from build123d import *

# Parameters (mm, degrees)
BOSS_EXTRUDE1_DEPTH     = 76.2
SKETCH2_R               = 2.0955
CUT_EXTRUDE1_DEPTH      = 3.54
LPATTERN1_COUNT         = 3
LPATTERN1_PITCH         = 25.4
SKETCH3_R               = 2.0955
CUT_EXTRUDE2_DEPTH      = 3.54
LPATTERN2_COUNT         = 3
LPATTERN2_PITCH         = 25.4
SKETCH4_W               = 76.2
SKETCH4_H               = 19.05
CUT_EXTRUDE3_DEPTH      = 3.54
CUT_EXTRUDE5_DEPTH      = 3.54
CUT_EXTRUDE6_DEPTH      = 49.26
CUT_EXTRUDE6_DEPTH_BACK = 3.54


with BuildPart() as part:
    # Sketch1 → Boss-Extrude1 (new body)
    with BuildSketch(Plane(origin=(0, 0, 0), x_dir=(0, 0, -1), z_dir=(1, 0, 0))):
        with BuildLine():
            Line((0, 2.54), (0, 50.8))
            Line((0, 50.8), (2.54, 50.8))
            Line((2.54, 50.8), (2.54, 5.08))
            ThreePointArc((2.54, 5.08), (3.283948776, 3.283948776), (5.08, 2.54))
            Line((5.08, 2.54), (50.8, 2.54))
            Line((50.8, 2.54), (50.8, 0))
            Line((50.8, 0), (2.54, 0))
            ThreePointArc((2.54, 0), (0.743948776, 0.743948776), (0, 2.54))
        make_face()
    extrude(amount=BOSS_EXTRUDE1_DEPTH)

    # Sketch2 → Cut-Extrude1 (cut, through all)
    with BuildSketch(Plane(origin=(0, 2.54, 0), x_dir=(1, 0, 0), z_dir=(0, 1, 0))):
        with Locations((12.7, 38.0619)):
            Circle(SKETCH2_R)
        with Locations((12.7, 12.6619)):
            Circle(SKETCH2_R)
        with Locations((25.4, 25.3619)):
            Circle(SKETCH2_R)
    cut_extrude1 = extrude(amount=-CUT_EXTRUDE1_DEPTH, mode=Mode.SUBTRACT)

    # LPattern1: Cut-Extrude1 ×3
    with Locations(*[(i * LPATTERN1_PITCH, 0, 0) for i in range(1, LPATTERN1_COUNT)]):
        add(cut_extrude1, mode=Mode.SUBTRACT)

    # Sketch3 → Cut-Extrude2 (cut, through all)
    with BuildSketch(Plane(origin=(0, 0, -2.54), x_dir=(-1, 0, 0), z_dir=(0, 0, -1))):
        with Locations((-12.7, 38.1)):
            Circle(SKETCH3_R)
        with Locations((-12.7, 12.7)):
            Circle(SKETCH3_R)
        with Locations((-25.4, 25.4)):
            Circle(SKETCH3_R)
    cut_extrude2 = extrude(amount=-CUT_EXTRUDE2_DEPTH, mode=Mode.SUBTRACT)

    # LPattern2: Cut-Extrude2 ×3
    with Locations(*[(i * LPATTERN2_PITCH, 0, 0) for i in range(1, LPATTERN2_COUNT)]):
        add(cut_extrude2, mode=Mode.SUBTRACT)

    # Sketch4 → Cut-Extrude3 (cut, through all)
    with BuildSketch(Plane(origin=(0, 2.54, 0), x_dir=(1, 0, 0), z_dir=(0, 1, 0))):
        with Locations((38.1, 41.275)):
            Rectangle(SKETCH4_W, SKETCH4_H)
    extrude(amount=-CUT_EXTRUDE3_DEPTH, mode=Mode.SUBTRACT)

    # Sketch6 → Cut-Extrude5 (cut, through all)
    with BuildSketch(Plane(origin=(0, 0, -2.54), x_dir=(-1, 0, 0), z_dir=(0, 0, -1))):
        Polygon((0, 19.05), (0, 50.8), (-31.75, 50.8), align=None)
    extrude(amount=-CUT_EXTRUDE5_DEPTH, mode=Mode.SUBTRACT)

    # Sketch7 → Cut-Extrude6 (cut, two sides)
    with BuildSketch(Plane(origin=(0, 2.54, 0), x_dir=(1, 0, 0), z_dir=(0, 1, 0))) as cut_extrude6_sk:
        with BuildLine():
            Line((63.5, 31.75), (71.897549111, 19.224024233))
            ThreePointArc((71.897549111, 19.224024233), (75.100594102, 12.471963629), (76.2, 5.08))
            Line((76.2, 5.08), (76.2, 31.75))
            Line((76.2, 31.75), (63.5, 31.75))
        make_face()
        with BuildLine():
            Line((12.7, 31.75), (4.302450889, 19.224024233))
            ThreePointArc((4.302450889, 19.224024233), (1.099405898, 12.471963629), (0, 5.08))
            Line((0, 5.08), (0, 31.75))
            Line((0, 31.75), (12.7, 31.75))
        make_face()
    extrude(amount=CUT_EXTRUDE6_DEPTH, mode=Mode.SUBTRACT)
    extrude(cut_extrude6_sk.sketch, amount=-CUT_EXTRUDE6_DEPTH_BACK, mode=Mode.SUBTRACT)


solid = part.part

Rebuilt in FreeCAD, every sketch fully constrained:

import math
import FreeCAD as App
import Part
import Sketcher

V = App.Vector
Q = App.Units.Quantity

doc = App.newDocument("Part")
params = doc.addObject("Spreadsheet::Sheet", "Params")
for row, (alias, value) in enumerate([
    ("sketch1_radius", "0.1 in"),
    ("sketch1_width", "1.9 in"),
    ("pad1_length", "3 in"),
    ("sketch2_diameter", "0.165 in"),
    ("linearpattern_pitch", "1 in"),
    ("sketch3_diameter", "0.165 in"),
    ("linearpattern2_pitch", "1 in"),
    ("sketch4_width", "3 in"),
    ("sketch4_height", "0.75 in"),
    ("sketch5_width", "1.25 in"),
    ("sketch6_radius", "1 in"),
    ("sketch6_width", "0.5 in"),
    ("sketch6_height", "1.05 in"),
], start=1):
    params.set(f"A{row}", alias)
    params.set(f"B{row}", "=" + value)
    params.setAlias(f"B{row}", alias)

body = doc.addObject("PartDesign::Body", "Body")

sketch1 = body.newObject("Sketcher::SketchObject", "Sketch")
sketch1.AttachmentSupport = (doc.getObject("YZ_Plane"), [""])
sketch1.MapMode = "FlatFace"
sketch1.addGeometry([
    Part.LineSegment(V(50.8, 0, 0), V(2.54, 0, 0)),
    Part.ArcOfCircle(Part.Circle(V(2.54, -2.54, 0), V(0, 0, 1), 2.54), math.radians(90), math.radians(180)),
    Part.LineSegment(V(0, -2.54, 0), V(0, -50.8, 0)),
    Part.LineSegment(V(0, -50.8, 0), V(2.54, -50.8, 0)),
    Part.LineSegment(V(2.54, -50.8, 0), V(2.54, -5.08, 0)),
    Part.ArcOfCircle(Part.Circle(V(5.08, -5.08, 0), V(0, 0, 1), 2.54), math.radians(90), math.radians(180)),
    Part.LineSegment(V(5.08, -2.54, 0), V(50.8, -2.54, 0)),
    Part.LineSegment(V(50.8, -2.54, 0), V(50.8, 0, 0)),
], False)
sketch1.addConstraint([
    Sketcher.Constraint("Tangent", 0, 2, 1, 1),
    Sketcher.Constraint("Tangent", 1, 2, 2, 1),
    Sketcher.Constraint("Coincident", 2, 2, 3, 1),
    Sketcher.Constraint("Coincident", 3, 2, 4, 1),
    Sketcher.Constraint("Tangent", 4, 2, 5, 2),
    Sketcher.Constraint("Tangent", 5, 1, 6, 1),
    Sketcher.Constraint("Coincident", 6, 2, 7, 1),
    Sketcher.Constraint("Coincident", 7, 2, 0, 1),
    Sketcher.Constraint("Horizontal", 0),
    Sketcher.Constraint("Vertical", 2),
    Sketcher.Constraint("Horizontal", 3),
    Sketcher.Constraint("Vertical", 4),
    Sketcher.Constraint("Horizontal", 6),
    Sketcher.Constraint("Vertical", 7),
    Sketcher.Constraint("Equal", 1, 5),
    Sketcher.Constraint("PointOnObject", 0, 2, -1),
    Sketcher.Constraint("PointOnObject", 1, 2, -2),
    Sketcher.Constraint("Horizontal", 1, 2, 5, 1),
    Sketcher.Constraint("Vertical", 0, 2, 3, 2),
    Sketcher.Constraint("Equal", 0, 2),
    Sketcher.Constraint("Radius", 1, Q("0.1 in")),
    Sketcher.Constraint("DistanceX", 0, 2, 0, 1, Q("1.9 in")),
])
sketch1.setExpression("Constraints[20]", "Params.sketch1_radius")
sketch1.setExpression("Constraints[21]", "Params.sketch1_width")
pad1 = body.newObject("PartDesign::Pad", "Pad")
pad1.Profile = sketch1
pad1.setExpression("Length", "Params.pad1_length")

sketch2 = body.newObject("Sketcher::SketchObject", "Sketch001")
sketch2.AttachmentSupport = (doc.getObject("XZ_Plane"), [""])
sketch2.MapMode = "FlatFace"
sketch2.AttachmentOffset = App.Placement(V(0, 0, -0.1 * 25.4), App.Rotation())
sketch2.addGeometry([
    Part.Circle(V(12.7, -38.0619, 0), V(0, 0, 1), 2.0955),
    Part.Circle(V(12.7, -12.6619, 0), V(0, 0, 1), 2.0955),
    Part.Circle(V(25.4, -25.3619, 0), V(0, 0, 1), 2.0955),
], False)
sketch2.addConstraint([
    Sketcher.Constraint("Equal", 0, 1),
    Sketcher.Constraint("Equal", 1, 2),
    Sketcher.Constraint("Vertical", 0, 3, 1, 3),
    Sketcher.Constraint("Diameter", 0, Q("0.165 in")),
    Sketcher.Constraint("DistanceX", -1, 1, 2, 3, Q("1 in")),
    Sketcher.Constraint("DistanceY", 0, 3, 1, 3, Q("1 in")),
    Sketcher.Constraint("DistanceX", -1, 1, 0, 3, Q("0.5 in")),
    Sketcher.Constraint("DistanceY", 0, 3, 2, 3, Q("0.5 in")),
    Sketcher.Constraint("DistanceY", 0, 3, -1, 1, Q("1.4985 in")),
])
sketch2.setExpression("Constraints[3]", "Params.sketch2_diameter")
pocket1 = body.newObject("PartDesign::Pocket", "Pocket")
pocket1.Profile = sketch2
pocket1.Type = "ThroughAll"
pocket1.Reversed = True
doc.recompute()

linearpattern = body.newObject("PartDesign::LinearPattern", "LinearPattern")
linearpattern.Originals = [pocket1]
linearpattern.Direction = (doc.getObject("X_Axis"), [""])
linearpattern.Mode = "offset"
linearpattern.setExpression("Offset", "Params.linearpattern_pitch")
linearpattern.Occurrences = 3
body.Tip = linearpattern

sketch3 = body.newObject("Sketcher::SketchObject", "Sketch002")
sketch3.AttachmentSupport = (doc.getObject("XY_Plane"), [""])
sketch3.MapMode = "FlatFace"
sketch3.AttachmentOffset = App.Placement(V(0, 0, -0.1 * 25.4), App.Rotation())
sketch3.addGeometry([
    Part.Circle(V(12.7, 38.1, 0), V(0, 0, 1), 2.0955),
    Part.Circle(V(12.7, 12.7, 0), V(0, 0, 1), 2.0955),
    Part.Circle(V(25.4, 25.4, 0), V(0, 0, 1), 2.0955),
], False)
sketch3.addConstraint([
    Sketcher.Constraint("Equal", 0, 1),
    Sketcher.Constraint("Equal", 1, 2),
    Sketcher.Constraint("Vertical", 0, 3, 1, 3),
    Sketcher.Constraint("Diameter", 0, Q("0.165 in")),
    Sketcher.Constraint("DistanceX", -1, 1, 2, 3, Q("1 in")),
    Sketcher.Constraint("DistanceY", -1, 1, 2, 3, Q("1 in")),
    Sketcher.Constraint("DistanceY", 1, 3, 0, 3, Q("1 in")),
    Sketcher.Constraint("DistanceX", -1, 1, 0, 3, Q("0.5 in")),
    Sketcher.Constraint("DistanceY", -1, 1, 0, 3, Q("1.5 in")),
])
sketch3.setExpression("Constraints[3]", "Params.sketch3_diameter")
pocket2 = body.newObject("PartDesign::Pocket", "Pocket001")
pocket2.Profile = sketch3
pocket2.Type = "ThroughAll"
pocket2.Reversed = True
doc.recompute()

linearpattern2 = body.newObject("PartDesign::LinearPattern", "LinearPattern001")
linearpattern2.Originals = [pocket2]
linearpattern2.Direction = (doc.getObject("X_Axis"), [""])
linearpattern2.Mode = "offset"
linearpattern2.setExpression("Offset", "Params.linearpattern2_pitch")
linearpattern2.Occurrences = 3
body.Tip = linearpattern2

sketch4 = body.newObject("Sketcher::SketchObject", "Sketch003")
sketch4.AttachmentSupport = (doc.getObject("XZ_Plane"), [""])
sketch4.MapMode = "FlatFace"
sketch4.AttachmentOffset = App.Placement(V(0, 0, -0.1 * 25.4), App.Rotation())
sketch4.addGeometry([
    Part.LineSegment(V(0, -50.8, 0), V(0, -31.75, 0)),
    Part.LineSegment(V(0, -31.75, 0), V(76.2, -31.75, 0)),
    Part.LineSegment(V(76.2, -31.75, 0), V(76.2, -50.8, 0)),
    Part.LineSegment(V(76.2, -50.8, 0), V(0, -50.8, 0)),
], False)
sketch4.addConstraint([
    Sketcher.Constraint("Coincident", 0, 2, 1, 1),
    Sketcher.Constraint("Coincident", 1, 2, 2, 1),
    Sketcher.Constraint("Coincident", 2, 2, 3, 1),
    Sketcher.Constraint("Coincident", 3, 2, 0, 1),
    Sketcher.Constraint("Vertical", 0),
    Sketcher.Constraint("Horizontal", 1),
    Sketcher.Constraint("Vertical", 2),
    Sketcher.Constraint("Horizontal", 3),
    Sketcher.Constraint("PointOnObject", 0, 2, -2),
    Sketcher.Constraint("DistanceX", 1, 1, 1, 2, Q("3 in")),
    Sketcher.Constraint("DistanceY", 2, 2, -1, 1, Q("2 in")),
    Sketcher.Constraint("DistanceY", 0, 1, 0, 2, Q("0.75 in")),
])
sketch4.setExpression("Constraints[9]", "Params.sketch4_width")
sketch4.setExpression("Constraints[11]", "Params.sketch4_height")
pocket3 = body.newObject("PartDesign::Pocket", "Pocket002")
pocket3.Profile = sketch4
pocket3.Type = "ThroughAll"
pocket3.Reversed = True

sketch5 = body.newObject("Sketcher::SketchObject", "Sketch004")
sketch5.AttachmentSupport = (doc.getObject("XY_Plane"), [""])
sketch5.MapMode = "FlatFace"
sketch5.AttachmentOffset = App.Placement(V(0, 0, -0.1 * 25.4), App.Rotation())
sketch5.addGeometry([
    Part.LineSegment(V(0, 19.05, 0), V(0, 50.8, 0)),
    Part.LineSegment(V(0, 50.8, 0), V(31.75, 50.8, 0)),
    Part.LineSegment(V(31.75, 50.8, 0), V(0, 19.05, 0)),
], False)
sketch5.addConstraint([
    Sketcher.Constraint("Coincident", 0, 2, 1, 1),
    Sketcher.Constraint("Coincident", 1, 2, 2, 1),
    Sketcher.Constraint("Coincident", 2, 2, 0, 1),
    Sketcher.Constraint("Vertical", 0),
    Sketcher.Constraint("Horizontal", 1),
    Sketcher.Constraint("PointOnObject", 0, 2, -2),
    Sketcher.Constraint("Equal", 1, 0),
    Sketcher.Constraint("DistanceY", -1, 1, 0, 2, Q("2 in")),
    Sketcher.Constraint("DistanceX", 1, 1, 1, 2, Q("1.25 in")),
])
sketch5.setExpression("Constraints[8]", "Params.sketch5_width")
pocket4 = body.newObject("PartDesign::Pocket", "Pocket003")
pocket4.Profile = sketch5
pocket4.Type = "ThroughAll"
pocket4.Reversed = True

sketch6 = body.newObject("Sketcher::SketchObject", "Sketch005")
sketch6.AttachmentSupport = (doc.getObject("XZ_Plane"), [""])
sketch6.MapMode = "FlatFace"
sketch6.AttachmentOffset = App.Placement(V(0, 0, -0.1 * 25.4), App.Rotation())
sketch6.addGeometry([
    Part.LineSegment(V(63.5, -31.75, 0), V(71.897549, -19.224024, 0)),
    Part.ArcOfCircle(Part.Circle(V(50.8, -5.08, 0), V(0, 0, 1), 25.4), math.radians(-33.838326), math.radians(0)),
    Part.LineSegment(V(76.2, -5.08, 0), V(76.2, -31.75, 0)),
    Part.LineSegment(V(76.2, -31.75, 0), V(63.5, -31.75, 0)),
    Part.LineSegment(V(4.302451, -19.224024, 0), V(12.7, -31.75, 0)),
    Part.LineSegment(V(12.7, -31.75, 0), V(0, -31.75, 0)),
    Part.LineSegment(V(0, -31.75, 0), V(0, -5.08, 0)),
    Part.ArcOfCircle(Part.Circle(V(25.4, -5.08, 0), V(0, 0, 1), 25.4), math.radians(180), math.radians(213.838326)),
], False)
sketch6.addConstraint([
    Sketcher.Constraint("Tangent", 0, 2, 1, 1),
    Sketcher.Constraint("Tangent", 1, 2, 2, 1),
    Sketcher.Constraint("Coincident", 2, 2, 3, 1),
    Sketcher.Constraint("Coincident", 3, 2, 0, 1),
    Sketcher.Constraint("Coincident", 4, 2, 5, 1),
    Sketcher.Constraint("Coincident", 5, 2, 6, 1),
    Sketcher.Constraint("Tangent", 6, 2, 7, 1),
    Sketcher.Constraint("Tangent", 7, 2, 4, 1),
    Sketcher.Constraint("Vertical", 2),
    Sketcher.Constraint("Horizontal", 3),
    Sketcher.Constraint("Horizontal", 5),
    Sketcher.Constraint("Vertical", 6),
    Sketcher.Constraint("Equal", 1, 7),
    Sketcher.Constraint("PointOnObject", 5, 2, -2),
    Sketcher.Constraint("Horizontal", 1, 3, 7, 3),
    Sketcher.Constraint("Horizontal", 3, 2, 4, 2),
    Sketcher.Constraint("Horizontal", 0, 2, 7, 2),
    Sketcher.Constraint("Radius", 1, Q("1 in")),
    Sketcher.Constraint("DistanceX", 3, 2, 3, 1, Q("0.5 in")),
    Sketcher.Constraint("DistanceX", -1, 1, 1, 3, Q("2 in")),
    Sketcher.Constraint("DistanceY", 2, 2, 2, 1, Q("1.05 in")),
    Sketcher.Constraint("DistanceY", 1, 3, -1, 1, Q("0.2 in")),
])
sketch6.setExpression("Constraints[17]", "Params.sketch6_radius")
sketch6.setExpression("Constraints[18]", "Params.sketch6_width")
sketch6.setExpression("Constraints[20]", "Params.sketch6_height")
pocket5 = body.newObject("PartDesign::Pocket", "Pocket004")
pocket5.Profile = sketch6
pocket5.Type = "ThroughAll"
pocket5.Midplane = True

doc.recompute()
